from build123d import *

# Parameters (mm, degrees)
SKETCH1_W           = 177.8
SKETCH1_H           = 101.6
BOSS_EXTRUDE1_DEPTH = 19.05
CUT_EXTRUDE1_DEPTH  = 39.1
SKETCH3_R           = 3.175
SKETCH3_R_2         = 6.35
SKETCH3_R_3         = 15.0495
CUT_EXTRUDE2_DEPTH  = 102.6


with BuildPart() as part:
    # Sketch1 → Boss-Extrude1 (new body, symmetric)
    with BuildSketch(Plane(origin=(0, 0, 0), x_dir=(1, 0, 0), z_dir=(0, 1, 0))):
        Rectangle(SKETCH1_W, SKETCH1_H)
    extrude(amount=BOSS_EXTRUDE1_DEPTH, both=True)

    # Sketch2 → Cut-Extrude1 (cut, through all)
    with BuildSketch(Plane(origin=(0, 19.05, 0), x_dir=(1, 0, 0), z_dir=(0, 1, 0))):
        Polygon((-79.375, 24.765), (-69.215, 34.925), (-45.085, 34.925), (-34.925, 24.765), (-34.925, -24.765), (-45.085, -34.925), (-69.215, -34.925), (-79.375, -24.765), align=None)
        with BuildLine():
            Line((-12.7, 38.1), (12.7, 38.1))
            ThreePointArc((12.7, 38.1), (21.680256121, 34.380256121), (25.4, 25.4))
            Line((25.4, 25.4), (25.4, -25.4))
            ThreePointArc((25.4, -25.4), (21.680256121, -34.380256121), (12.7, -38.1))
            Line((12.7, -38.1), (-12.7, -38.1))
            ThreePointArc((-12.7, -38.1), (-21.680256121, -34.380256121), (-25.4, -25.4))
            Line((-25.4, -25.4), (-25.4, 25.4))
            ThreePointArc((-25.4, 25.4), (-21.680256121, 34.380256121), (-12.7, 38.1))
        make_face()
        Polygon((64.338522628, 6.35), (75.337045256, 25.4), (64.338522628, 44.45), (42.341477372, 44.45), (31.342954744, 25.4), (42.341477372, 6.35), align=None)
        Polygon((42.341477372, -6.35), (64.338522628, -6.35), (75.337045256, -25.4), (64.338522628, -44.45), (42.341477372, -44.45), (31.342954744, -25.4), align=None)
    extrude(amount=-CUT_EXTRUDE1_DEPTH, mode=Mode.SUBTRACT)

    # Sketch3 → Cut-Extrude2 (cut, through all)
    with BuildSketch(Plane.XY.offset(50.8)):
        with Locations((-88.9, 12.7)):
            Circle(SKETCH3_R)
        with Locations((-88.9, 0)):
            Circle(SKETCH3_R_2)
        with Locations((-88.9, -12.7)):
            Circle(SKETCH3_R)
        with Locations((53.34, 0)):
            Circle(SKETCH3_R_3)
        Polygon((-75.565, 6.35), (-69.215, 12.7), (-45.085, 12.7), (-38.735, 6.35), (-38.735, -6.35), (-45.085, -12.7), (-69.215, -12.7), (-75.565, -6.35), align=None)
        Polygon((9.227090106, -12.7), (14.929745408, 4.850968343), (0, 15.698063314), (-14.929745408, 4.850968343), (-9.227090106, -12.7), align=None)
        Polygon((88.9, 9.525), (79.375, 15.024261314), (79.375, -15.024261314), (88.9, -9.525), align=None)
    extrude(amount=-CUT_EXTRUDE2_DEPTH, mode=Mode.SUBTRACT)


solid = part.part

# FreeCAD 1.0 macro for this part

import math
import FreeCAD as App
import Part
import Sketcher
from FreeCAD import Vector
Q = App.Units.Quantity

doc = App.newDocument("Part")
params = doc.addObject("Spreadsheet::Sheet", "Params")
for row, (alias, value) in enumerate([
    ("sketch1_width", "7 in"),
    ("sketch1_height", "4 in"),
    ("pad1_length", "1.5 in"),
    ("sketch2_radius", "0.5 in"),
    ("sketch2_width", "1 in"),
    ("sketch2_height", "2 in"),
    ("sketch2_width2", "0.95 in"),
    ("sketch2_height2", "1.95 in"),
    ("sketch3_diameter", "0.5 in"),
    ("sketch3_diameter2", "0.25 in"),
    ("sketch3_diameter3", "1.185 in"),
    ("sketch3_height", "0.5 in"),
    ("sketch3_width", "0.95 in"),
], start=1):
    params.set(f"A{row}", alias)
    params.set(f"B{row}", "=" + value)
    params.setAlias(f"B{row}", alias)

body = doc.addObject("PartDesign::Body", "Body")

# Sketch on XZ plane
sketch1 = body.newObject("Sketcher::SketchObject", "Sketch")
sketch1.AttachmentSupport = (doc.getObject("XZ_Plane"), [""])
sketch1.MapMode = "FlatFace"
sketch1.addGeometry([
    Part.LineSegment(Vector(-88.9, -50.8, 0), Vector(-88.9, 50.8, 0)),
    Part.LineSegment(Vector(-88.9, 50.8, 0), Vector(88.9, 50.8, 0)),
    Part.LineSegment(Vector(88.9, 50.8, 0), Vector(88.9, -50.8, 0)),
    Part.LineSegment(Vector(88.9, -50.8, 0), Vector(-88.9, -50.8, 0)),
], False)
sketch1.addConstraint([
    Sketcher.Constraint("Coincident", 0, 2, 1, 1),
    Sketcher.Constraint("Coincident", 1, 2, 2, 1),
    Sketcher.Constraint("Coincident", 2, 2, 3, 1),
    Sketcher.Constraint("Coincident", 3, 2, 0, 1),
    Sketcher.Constraint("Vertical", 0),
    Sketcher.Constraint("Horizontal", 1),
    Sketcher.Constraint("Vertical", 2),
    Sketcher.Constraint("Horizontal", 3),
    Sketcher.Constraint("Symmetric", 0, 2, 2, 2, -1, 1),
    Sketcher.Constraint("DistanceX", 1, 1, 1, 2, Q("7 in")),
    Sketcher.Constraint("DistanceY", 0, 1, 0, 2, Q("4 in")),
])
sketch1.setExpression("Constraints[9]", "Params.sketch1_width")
sketch1.setExpression("Constraints[10]", "Params.sketch1_height")
pad1 = body.newObject("PartDesign::Pad", "Pad")
pad1.Profile = sketch1
pad1.setExpression("Length", "Params.pad1_length")
pad1.Midplane = True

# Sketch on XZ plane
sketch2 = body.newObject("Sketcher::SketchObject", "Sketch001")
sketch2.AttachmentSupport = (doc.getObject("XZ_Plane"), [""])
sketch2.MapMode = "FlatFace"
sketch2.AttachmentOffset = App.Placement(Vector(0, 0, -0.75 * 25.4), App.Rotation())
sketch2.addGeometry([
    Part.LineSegment(Vector(-69.215, -34.925, 0), Vector(-79.375, -24.765, 0)),  # 0
    Part.LineSegment(Vector(-79.375, -24.765, 0), Vector(-79.375, 24.765, 0)),  # 1
    Part.LineSegment(Vector(-79.375, 24.765, 0), Vector(-69.215, 34.925, 0)),  # 2
    Part.LineSegment(Vector(-69.215, 34.925, 0), Vector(-45.085, 34.925, 0)),  # 3
    Part.LineSegment(Vector(-45.085, 34.925, 0), Vector(-34.925, 24.765, 0)),  # 4
    Part.LineSegment(Vector(-34.925, 24.765, 0), Vector(-34.925, -24.765, 0)),  # 5
    Part.LineSegment(Vector(-34.925, -24.765, 0), Vector(-45.085, -34.925, 0)),  # 6
    Part.LineSegment(Vector(-45.085, -34.925, 0), Vector(-69.215, -34.925, 0)),  # 7
    Part.LineSegment(Vector(12.7, -38.1, 0), Vector(-12.7, -38.1, 0)),  # 8
    Part.ArcOfCircle(Part.Circle(Vector(-12.7, -25.4, 0), Vector(0, 0, 1), 12.7), math.radians(180), math.radians(270)),  # 9
    Part.LineSegment(Vector(-25.4, -25.4, 0), Vector(-25.4, 25.4, 0)),  # 10
    Part.ArcOfCircle(Part.Circle(Vector(-12.7, 25.4, 0), Vector(0, 0, 1), 12.7), math.radians(90), math.radians(180)),  # 11
    Part.LineSegment(Vector(-12.7, 38.1, 0), Vector(12.7, 38.1, 0)),  # 12
    Part.ArcOfCircle(Part.Circle(Vector(12.7, 25.4, 0), Vector(0, 0, 1), 12.7), math.radians(0), math.radians(90)),  # 13
    Part.LineSegment(Vector(25.4, 25.4, 0), Vector(25.4, -25.4, 0)),  # 14
    Part.ArcOfCircle(Part.Circle(Vector(12.7, -25.4, 0), Vector(0, 0, 1), 12.7), math.radians(-90), math.radians(0)),  # 15
    Part.LineSegment(Vector(64.338523, -6.35, 0), Vector(75.337045, -25.4, 0)),  # 16
    Part.LineSegment(Vector(75.337045, -25.4, 0), Vector(64.338523, -44.45, 0)),  # 17
    Part.LineSegment(Vector(64.338523, -44.45, 0), Vector(42.341477, -44.45, 0)),  # 18
    Part.LineSegment(Vector(42.341477, -44.45, 0), Vector(31.342955, -25.4, 0)),  # 19
    Part.LineSegment(Vector(31.342955, -25.4, 0), Vector(42.341477, -6.35, 0)),  # 20
    Part.LineSegment(Vector(42.341477, -6.35, 0), Vector(64.338523, -6.35, 0)),  # 21
    Part.LineSegment(Vector(64.338523, 6.35, 0), Vector(42.341477, 6.35, 0)),  # 22
    Part.LineSegment(Vector(42.341477, 6.35, 0), Vector(31.342955, 25.4, 0)),  # 23
    Part.LineSegment(Vector(31.342955, 25.4, 0), Vector(42.341477, 44.45, 0)),  # 24
    Part.LineSegment(Vector(42.341477, 44.45, 0), Vector(64.338523, 44.45, 0)),  # 25
    Part.LineSegment(Vector(64.338523, 44.45, 0), Vector(75.337045, 25.4, 0)),  # 26
    Part.LineSegment(Vector(75.337045, 25.4, 0), Vector(64.338523, 6.35, 0)),  # 27
], False)
sketch2.addConstraint([
    Sketcher.Constraint("Coincident", 0, 2, 1, 1),
    Sketcher.Constraint("Coincident", 1, 2, 2, 1),
    Sketcher.Constraint("Coincident", 2, 2, 3, 1),
    Sketcher.Constraint("Coincident", 3, 2, 4, 1),
    Sketcher.Constraint("Coincident", 4, 2, 5, 1),
    Sketcher.Constraint("Coincident", 5, 2, 6, 1),
    Sketcher.Constraint("Coincident", 6, 2, 7, 1),
    Sketcher.Constraint("Coincident", 7, 2, 0, 1),
    Sketcher.Constraint("Tangent", 8, 2, 9, 2),
    Sketcher.Constraint("Tangent", 9, 1, 10, 1),
    Sketcher.Constraint("Tangent", 10, 2, 11, 2),
    Sketcher.Constraint("Tangent", 11, 1, 12, 1),
    Sketcher.Constraint("Tangent", 12, 2, 13, 2),
    Sketcher.Constraint("Tangent", 13, 1, 14, 1),
    Sketcher.Constraint("Tangent", 14, 2, 15, 2),
    Sketcher.Constraint("Tangent", 15, 1, 8, 1),
    Sketcher.Constraint("Coincident", 16, 2, 17, 1),
    Sketcher.Constraint("Coincident", 17, 2, 18, 1),
    Sketcher.Constraint("Coincident", 18, 2, 19, 1),
    Sketcher.Constraint("Coincident", 19, 2, 20, 1),
    Sketcher.Constraint("Coincident", 20, 2, 21, 1),
    Sketcher.Constraint("Coincident", 21, 2, 16, 1),
    Sketcher.Constraint("Coincident", 22, 2, 23, 1),
    Sketcher.Constraint("Coincident", 23, 2, 24, 1),
    Sketcher.Constraint("Coincident", 24, 2, 25, 1),
    Sketcher.Constraint("Coincident", 25, 2, 26, 1),
    Sketcher.Constraint("Coincident", 26, 2, 27, 1),
    Sketcher.Constraint("Coincident", 27, 2, 22, 1),
    Sketcher.Constraint("Vertical", 1),
    Sketcher.Constraint("Horizontal", 3),
    Sketcher.Constraint("Vertical", 5),
    Sketcher.Constraint("Horizontal", 7),
    Sketcher.Constraint("Horizontal", 8),
    Sketcher.Constraint("Vertical", 10),
    Sketcher.Constraint("Horizontal", 12),
    Sketcher.Constraint("Vertical", 14),
    Sketcher.Constraint("Horizontal", 18),
    Sketcher.Constraint("Horizontal", 21),
    Sketcher.Constraint("Horizontal", 22),
    Sketcher.Constraint("Horizontal", 25),
    Sketcher.Constraint("Equal", 9, 11),
    Sketcher.Constraint("Equal", 11, 13),
    Sketcher.Constraint("Equal", 13, 15),
    Sketcher.Constraint("Symmetric", 9, 3, 13, 3, -1, 1),
    Sketcher.Constraint("Symmetric", 3, 2, 6, 2, -1),
    Sketcher.Constraint("Symmetric", 20, 2, 22, 2, -1),
    Sketcher.Constraint("Symmetric", 19, 2, 23, 2, -1),
    Sketcher.Constraint("Symmetric", 18, 2, 24, 2, -1),
    Sketcher.Constraint("Symmetric", 16, 2, 26, 2, -1),
    Sketcher.Constraint("Perpendicular", 0, 2),
    Sketcher.Constraint("Perpendicular", 2, 4),
    Sketcher.Constraint("Perpendicular", 4, 6),
    Sketcher.Constraint("Parallel", 16, 19),
    Sketcher.Constraint("Parallel", 17, 20),
    Sketcher.Constraint("Parallel", 19, 23),
    Sketcher.Constraint("Parallel", 23, 26),
    Sketcher.Constraint("Parallel", 24, 27),
    Sketcher.Constraint("Horizontal", 1, 2, 4, 2),
    Sketcher.Constraint("Horizontal", 0, 2, 5, 2),
    Sketcher.Constraint("Horizontal", 14, 2, 16, 2),
    Sketcher.Constraint("Horizontal", 16, 2, 19, 2),
    Sketcher.Constraint("Vertical", 2, 2, 7, 2),
    Sketcher.Constraint("Vertical", 18, 2, 20, 2),
    Sketcher.Constraint("Radius", 9, Q("0.5 in")),
    Sketcher.Constraint("DistanceX", 8, 2, 8, 1, Q("1 in")),
    Sketcher.Constraint("DistanceY", 10, 1, 10, 2, Q("2 in")),
    Sketcher.Constraint("Angle", 16, Q("-60 deg")),
    Sketcher.Constraint("DistanceX", 3, 1, 3, 2, Q("0.95 in")),
    Sketcher.Constraint("DistanceY", 1, 1, 1, 2, Q("1.95 in")),
    Sketcher.Constraint("DistanceX", 1, 2, 2, 2, Q("0.4 in")),
    Sketcher.Constraint("DistanceY", 17, 2, 21, 2, Q("1.5 in")),
    Sketcher.Constraint("DistanceX", 0, 2, -1, 1, Q("3.125 in")),
    Sketcher.Constraint("DistanceX", 18, 2, 18, 1, Q("21.997045 mm")),
    Sketcher.Constraint("DistanceX", -1, 1, 16, 2, Q("75.337045 mm")),
])
sketch2.setExpression("Constraints[63]", "Params.sketch2_radius")
sketch2.setExpression("Constraints[64]", "Params.sketch2_width")
sketch2.setExpression("Constraints[65]", "Params.sketch2_height")
sketch2.setExpression("Constraints[67]", "Params.sketch2_width2")
sketch2.setExpression("Constraints[68]", "Params.sketch2_height2")
pocket1 = body.newObject("PartDesign::Pocket", "Pocket")
pocket1.Profile = sketch2
pocket1.Type = "ThroughAll"
pocket1.Reversed = True

# Sketch on XY plane
sketch3 = body.newObject("Sketcher::SketchObject", "Sketch002")
sketch3.AttachmentSupport = (doc.getObject("XY_Plane"), [""])
sketch3.MapMode = "FlatFace"
sketch3.AttachmentOffset = App.Placement(Vector(0, 0, 2 * 25.4), App.Rotation())
sketch3.addGeometry([
    Part.Circle(Vector(-88.9, 12.7, 0), Vector(0, 0, 1), 3.175),  # 0
    Part.Circle(Vector(-88.9, 0, 0), Vector(0, 0, 1), 6.35),  # 1
    Part.Circle(Vector(-88.9, -12.7, 0), Vector(0, 0, 1), 3.175),  # 2
    Part.Circle(Vector(53.34, 0, 0), Vector(0, 0, 1), 15.0495),  # 3
    Part.LineSegment(Vector(-69.215, 12.7, 0), Vector(-75.565, 6.35, 0)),  # 4
    Part.LineSegment(Vector(-75.565, 6.35, 0), Vector(-75.565, -6.35, 0)),  # 5
    Part.LineSegment(Vector(-75.565, -6.35, 0), Vector(-69.215, -12.7, 0)),  # 6
    Part.LineSegment(Vector(-69.215, -12.7, 0), Vector(-45.085, -12.7, 0)),  # 7
    Part.LineSegment(Vector(-45.085, -12.7, 0), Vector(-38.735, -6.35, 0)),  # 8
    Part.LineSegment(Vector(-38.735, -6.35, 0), Vector(-38.735, 6.35, 0)),  # 9
    Part.LineSegment(Vector(-38.735, 6.35, 0), Vector(-45.085, 12.7, 0)),  # 10
    Part.LineSegment(Vector(-45.085, 12.7, 0), Vector(-69.215, 12.7, 0)),  # 11
    Part.LineSegment(Vector(9.22709, -12.7, 0), Vector(14.929745, 4.850968, 0)),  # 12
    Part.LineSegment(Vector(14.929745, 4.850968, 0), Vector(0, 15.698063, 0)),  # 13
    Part.LineSegment(Vector(0, 15.698063, 0), Vector(-14.929745, 4.850968, 0)),  # 14
    Part.LineSegment(Vector(-14.929745, 4.850968, 0), Vector(-9.22709, -12.7, 0)),  # 15
    Part.LineSegment(Vector(-9.22709, -12.7, 0), Vector(9.22709, -12.7, 0)),  # 16
    Part.LineSegment(Vector(88.9, 9.525, 0), Vector(79.375, 15.024261, 0)),  # 17
    Part.LineSegment(Vector(79.375, 15.024261, 0), Vector(79.375, -15.024261, 0)),  # 18
    Part.LineSegment(Vector(79.375, -15.024261, 0), Vector(88.9, -9.525, 0)),  # 19
    Part.LineSegment(Vector(88.9, -9.525, 0), Vector(88.9, 9.525, 0)),  # 20
], False)
sketch3.addConstraint([
    Sketcher.Constraint("Coincident", 4, 2, 5, 1),
    Sketcher.Constraint("Coincident", 5, 2, 6, 1),
    Sketcher.Constraint("Coincident", 6, 2, 7, 1),
    Sketcher.Constraint("Coincident", 7, 2, 8, 1),
    Sketcher.Constraint("Coincident", 8, 2, 9, 1),
    Sketcher.Constraint("Coincident", 9, 2, 10, 1),
    Sketcher.Constraint("Coincident", 10, 2, 11, 1),
    Sketcher.Constraint("Coincident", 11, 2, 4, 1),
    Sketcher.Constraint("Coincident", 12, 2, 13, 1),
    Sketcher.Constraint("Coincident", 13, 2, 14, 1),
    Sketcher.Constraint("Coincident", 14, 2, 15, 1),
    Sketcher.Constraint("Coincident", 15, 2, 16, 1),
    Sketcher.Constraint("Coincident", 16, 2, 12, 1),
    Sketcher.Constraint("Coincident", 17, 2, 18, 1),
    Sketcher.Constraint("Coincident", 18, 2, 19, 1),
    Sketcher.Constraint("Coincident", 19, 2, 20, 1),
    Sketcher.Constraint("Coincident", 20, 2, 17, 1),
    Sketcher.Constraint("Vertical", 5),
    Sketcher.Constraint("Horizontal", 7),
    Sketcher.Constraint("Vertical", 9),
    Sketcher.Constraint("Horizontal", 11),
    Sketcher.Constraint("Horizontal", 16),
    Sketcher.Constraint("Vertical", 18),
    Sketcher.Constraint("Vertical", 20),
    Sketcher.Constraint("Equal", 0, 2),
    Sketcher.Constraint("Symmetric", 12, 2, 14, 2, -2),
    Sketcher.Constraint("Symmetric", 0, 3, 2, 3, -1),
    Sketcher.Constraint("Symmetric", 7, 2, 10, 2, -1),
    Sketcher.Constraint("PointOnObject", 1, 3, -1),
    Sketcher.Constraint("PointOnObject", 3, 3, -1),
    Sketcher.Constraint("PointOnObject", 13, 2, -2),
    Sketcher.Constraint("Perpendicular", 4, 6),
    Sketcher.Constraint("Perpendicular", 6, 8),
    Sketcher.Constraint("Perpendicular", 8, 10),
    Sketcher.Constraint("Horizontal", 2, 3, 6, 2),
    Sketcher.Constraint("Horizontal", 5, 2, 8, 2),
    Sketcher.Constraint("Horizontal", 4, 2, 9, 2),
    Sketcher.Constraint("Horizontal", 7, 2, 15, 2),
    Sketcher.Constraint("Vertical", 0, 3, 1, 3),
    Sketcher.Constraint("Vertical", 6, 2, 11, 2),
    Sketcher.Constraint("Equal", 12, 13),
    Sketcher.Constraint("Equal", 14, 15),
    Sketcher.Constraint("Equal", 17, 19),
    Sketcher.Constraint("Diameter", 1, Q("0.5 in")),
    Sketcher.Constraint("Diameter", 0, Q("0.25 in")),
    Sketcher.Constraint("Diameter", 3, Q("1.185 in")),
    Sketcher.Constraint("DistanceY", 5, 2, 5, 1, Q("0.5 in")),
    Sketcher.Constraint("Angle", 12, Q("72 deg")),
    Sketcher.Constraint("Angle", 13, Q("144 deg")),
    Sketcher.Constraint("Angle", 17, Q("150 deg")),
    Sketcher.Constraint("DistanceY", 2, 3, 0, 3, Q("1 in")),
    Sketcher.Constraint("DistanceX", 7, 1, 7, 2, Q("0.95 in")),
    Sketcher.Constraint("DistanceY", 20, 1, 20, 2, Q("0.75 in")),
    Sketcher.Constraint("DistanceX", 0, 3, -1, 1, Q("3.5 in")),
    Sketcher.Constraint("DistanceX", -1, 1, 3, 3, Q("2.1 in")),
    Sketcher.Constraint("DistanceX", -1, 1, 19, 2, Q("3.5 in")),
    Sketcher.Constraint("DistanceX", 4, 2, -1, 1, Q("2.975 in")),
    Sketcher.Constraint("DistanceX", -1, 1, 17, 2, Q("3.125 in")),
    Sketcher.Constraint("DistanceY", 19, 2, -1, 1, Q("0.375 in")),
    Sketcher.Constraint("DistanceX", 16, 1, 16, 2, Q("18.45418 mm")),
])
sketch3.setExpression("Constraints[43]", "Params.sketch3_diameter")
sketch3.setExpression("Constraints[44]", "Params.sketch3_diameter2")
sketch3.setExpression("Constraints[45]", "Params.sketch3_diameter3")
sketch3.setExpression("Constraints[46]", "Params.sketch3_height")
sketch3.setExpression("Constraints[51]", "Params.sketch3_width")
pocket2 = body.newObject("PartDesign::Pocket", "Pocket001")
pocket2.Profile = sketch3
pocket2.Type = "ThroughAll"

doc.recompute()
